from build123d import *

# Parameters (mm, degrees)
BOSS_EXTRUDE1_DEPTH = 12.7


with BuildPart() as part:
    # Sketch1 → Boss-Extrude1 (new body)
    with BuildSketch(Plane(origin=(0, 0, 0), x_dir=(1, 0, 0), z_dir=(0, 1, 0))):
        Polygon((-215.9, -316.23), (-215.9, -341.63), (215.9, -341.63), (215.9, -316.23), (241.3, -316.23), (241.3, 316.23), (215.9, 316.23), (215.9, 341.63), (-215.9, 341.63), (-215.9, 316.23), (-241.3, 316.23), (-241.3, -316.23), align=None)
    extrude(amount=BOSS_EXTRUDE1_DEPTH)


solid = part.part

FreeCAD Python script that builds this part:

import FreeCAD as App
import Part
import Sketcher
from FreeCAD import Vector
Q = App.Units.Quantity


def add_polygon(sketch, points):
    """Adds a closed chain of lines whose ends are joined by coincident constraints."""
    first, n = sketch.GeometryCount, len(points)
    for a, b in zip(points, points[1:] + points[:1]):
        sketch.addGeometry(Part.LineSegment(App.Vector(*a, 0), App.Vector(*b, 0)), False)
    for i in range(n):
        sketch.addConstraint(Sketcher.Constraint("Coincident", first + i, 2, first + (i + 1) % n, 1))

doc = App.newDocument("Part")
body = doc.addObject("PartDesign::Body", "Body")

# Sketch on XZ plane
sketch1 = body.newObject("Sketcher::SketchObject", "Sketch")
sketch1.AttachmentSupport = (doc.getObject("XZ_Plane"), [""])
sketch1.MapMode = "FlatFace"
add_polygon(sketch1, [(-216, 316), (-216, 342), (216, 342), (216, 316), (241, 316), (241, -316), (216, -316), (216, -342), (-216, -342), (-216, -316), (-241, -316), (-241, 316)])  # lines 0-11
sketch1.addConstraint([
    Sketcher.Constraint("Vertical", 0),
    Sketcher.Constraint("Horizontal", 1),
    Sketcher.Constraint("Vertical", 2),
    Sketcher.Constraint("Horizontal", 3),
    Sketcher.Constraint("Vertical", 4),
    Sketcher.Constraint("Horizontal", 5),
    Sketcher.Constraint("Vertical", 6),
    Sketcher.Constraint("Horizontal", 7),
    Sketcher.Constraint("Vertical", 8),
    Sketcher.Constraint("Horizontal", 9),
    Sketcher.Constraint("Vertical", 10),
    Sketcher.Constraint("Horizontal", 11),
    Sketcher.Constraint("Symmetric", 0, 2, 6, 2, -1, 1),
    Sketcher.Constraint("Symmetric", 2, 2, 8, 2, -1, 1),
    Sketcher.Constraint("Symmetric", 4, 2, 10, 2, -1, 1),
    Sketcher.Constraint("Symmetric", 5, 2, 8, 2, -2),
    Sketcher.Constraint("Equal", 11, 0),
    Sketcher.Constraint("DistanceX", 1, 1, 1, 2, Q("17 in")),
    Sketcher.Constraint("DistanceX", 3, 1, 3, 2, Q("1 in")),
    Sketcher.Constraint("DistanceY", 4, 2, 4, 1, Q("24.9 in")),
])
pad1 = body.newObject("PartDesign::Pad", "Pad")
pad1.Profile = sketch1
pad1.Length = Q("0.5 in")
pad1.Reversed = True

doc.recompute()
